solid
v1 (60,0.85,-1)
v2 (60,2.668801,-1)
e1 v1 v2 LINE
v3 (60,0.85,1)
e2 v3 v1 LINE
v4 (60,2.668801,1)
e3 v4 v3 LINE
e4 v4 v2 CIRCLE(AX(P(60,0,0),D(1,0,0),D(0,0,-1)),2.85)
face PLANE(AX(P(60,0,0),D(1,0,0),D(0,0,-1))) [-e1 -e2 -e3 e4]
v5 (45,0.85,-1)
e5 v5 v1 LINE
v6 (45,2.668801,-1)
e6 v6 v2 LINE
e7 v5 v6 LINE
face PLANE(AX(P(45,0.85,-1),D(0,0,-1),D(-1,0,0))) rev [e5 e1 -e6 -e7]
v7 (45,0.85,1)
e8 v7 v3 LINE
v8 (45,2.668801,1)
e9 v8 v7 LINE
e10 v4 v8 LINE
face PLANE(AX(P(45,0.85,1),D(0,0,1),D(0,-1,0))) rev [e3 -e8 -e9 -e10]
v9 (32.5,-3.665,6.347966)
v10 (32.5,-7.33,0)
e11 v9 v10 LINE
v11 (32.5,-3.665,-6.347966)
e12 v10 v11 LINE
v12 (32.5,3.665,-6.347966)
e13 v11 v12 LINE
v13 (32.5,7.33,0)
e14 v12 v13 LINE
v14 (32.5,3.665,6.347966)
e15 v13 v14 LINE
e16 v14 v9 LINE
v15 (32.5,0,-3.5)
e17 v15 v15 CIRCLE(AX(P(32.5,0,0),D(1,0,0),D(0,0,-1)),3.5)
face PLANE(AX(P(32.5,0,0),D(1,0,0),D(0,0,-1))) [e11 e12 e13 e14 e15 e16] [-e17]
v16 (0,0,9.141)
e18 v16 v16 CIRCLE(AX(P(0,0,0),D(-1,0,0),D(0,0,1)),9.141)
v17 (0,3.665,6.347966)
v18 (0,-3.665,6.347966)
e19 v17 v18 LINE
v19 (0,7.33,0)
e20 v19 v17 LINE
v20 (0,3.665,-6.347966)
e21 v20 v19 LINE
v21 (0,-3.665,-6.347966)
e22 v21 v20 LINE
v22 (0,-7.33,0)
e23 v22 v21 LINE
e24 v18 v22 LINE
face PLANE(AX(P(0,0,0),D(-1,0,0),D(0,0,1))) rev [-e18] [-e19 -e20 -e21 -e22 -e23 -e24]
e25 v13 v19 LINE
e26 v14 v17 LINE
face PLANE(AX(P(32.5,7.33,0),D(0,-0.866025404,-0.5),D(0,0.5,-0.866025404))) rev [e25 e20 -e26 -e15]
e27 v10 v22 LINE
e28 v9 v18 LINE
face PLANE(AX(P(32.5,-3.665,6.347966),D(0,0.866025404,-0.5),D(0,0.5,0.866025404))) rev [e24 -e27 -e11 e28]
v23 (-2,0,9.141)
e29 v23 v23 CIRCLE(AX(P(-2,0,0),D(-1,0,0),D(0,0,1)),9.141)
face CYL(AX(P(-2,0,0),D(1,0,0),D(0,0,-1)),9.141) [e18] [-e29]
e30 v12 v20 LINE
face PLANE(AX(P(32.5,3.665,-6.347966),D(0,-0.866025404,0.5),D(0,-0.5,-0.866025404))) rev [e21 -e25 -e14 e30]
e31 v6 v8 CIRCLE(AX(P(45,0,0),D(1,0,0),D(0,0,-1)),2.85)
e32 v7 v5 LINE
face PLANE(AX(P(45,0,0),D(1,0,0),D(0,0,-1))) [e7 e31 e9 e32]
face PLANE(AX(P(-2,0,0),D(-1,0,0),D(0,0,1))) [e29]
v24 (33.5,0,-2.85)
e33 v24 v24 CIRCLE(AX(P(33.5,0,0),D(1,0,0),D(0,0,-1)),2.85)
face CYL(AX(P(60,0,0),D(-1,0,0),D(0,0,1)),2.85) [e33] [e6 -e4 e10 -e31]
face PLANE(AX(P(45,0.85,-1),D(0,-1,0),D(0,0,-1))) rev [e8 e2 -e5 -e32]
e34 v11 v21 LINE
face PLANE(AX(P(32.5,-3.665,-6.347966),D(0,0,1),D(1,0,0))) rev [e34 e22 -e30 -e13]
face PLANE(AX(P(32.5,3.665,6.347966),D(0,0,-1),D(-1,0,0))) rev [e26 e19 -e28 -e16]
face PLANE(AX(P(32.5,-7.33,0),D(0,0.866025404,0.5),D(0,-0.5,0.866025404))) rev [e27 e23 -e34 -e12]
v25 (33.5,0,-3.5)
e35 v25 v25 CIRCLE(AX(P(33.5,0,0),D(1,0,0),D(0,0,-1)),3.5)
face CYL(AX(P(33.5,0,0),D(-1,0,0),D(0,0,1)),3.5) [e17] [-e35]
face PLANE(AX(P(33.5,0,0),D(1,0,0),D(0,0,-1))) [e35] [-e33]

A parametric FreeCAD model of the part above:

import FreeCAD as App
import Part
import Sketcher
Q = App.Units.Quantity

doc = App.newDocument("Part")
body = doc.addObject("PartDesign::Body", "Body")

# Sketch on YZ plane
sketch1 = body.newObject("Sketcher::SketchObject", "Sketch")
sketch1.AttachmentSupport = (doc.getObject("YZ_Plane"), [""])
sketch1.MapMode = "FlatFace"
sketch1.addGeometry(Part.Circle(App.Vector(0, 0, 0), App.Vector(0, 0, 1), 2.9), False)
sketch1.addConstraint([
    Sketcher.Constraint("Coincident", 0, 3, -1, 1),
    Sketcher.Constraint("Diameter", 0, Q("5.7 mm")),
])
pad1 = body.newObject("PartDesign::Pad", "Pad")
pad1.Profile = sketch1
pad1.Length = 60

# Sketch on YZ plane
sketch2 = body.newObject("Sketcher::SketchObject", "Sketch001")
sketch2.AttachmentSupport = (doc.getObject("YZ_Plane"), [""])
sketch2.MapMode = "FlatFace"
sketch2.addGeometry(Part.Circle(App.Vector(0, 0, 0), App.Vector(0, 0, 1), 9), False)
sketch2.addConstraint([
    Sketcher.Constraint("Coincident", 0, 3, -1, 1),
    Sketcher.Constraint("Diameter", 0, Q("18.282 mm")),
])
pad2 = body.newObject("PartDesign::Pad", "Pad001")
pad2.Profile = sketch2
pad2.Length = 2
pad2.Reversed = True

# Sketch on YZ plane
sketch3 = body.newObject("Sketcher::SketchObject", "Sketch002")
sketch3.AttachmentSupport = (doc.getObject("YZ_Plane"), [""])
sketch3.MapMode = "FlatFace"
sketch3.addGeometry([
    Part.LineSegment(App.Vector(4, 6, 0), App.Vector(-4, 6, 0)),  # 0
    Part.LineSegment(App.Vector(-4, 6, 0), App.Vector(-7, 0, 0)),  # 1
    Part.LineSegment(App.Vector(-7, 0, 0), App.Vector(-4, -6, 0)),  # 2
    Part.LineSegment(App.Vector(-4, -6, 0), App.Vector(4, -6, 0)),  # 3
    Part.LineSegment(App.Vector(4, -6, 0), App.Vector(7, 0, 0)),  # 4
    Part.LineSegment(App.Vector(7, 0, 0), App.Vector(4, 6, 0)),  # 5
], False)
sketch3.addConstraint([
    Sketcher.Constraint("Coincident", 0, 2, 1, 1),
    Sketcher.Constraint("Coincident", 1, 2, 2, 1),
    Sketcher.Constraint("Coincident", 2, 2, 3, 1),
    Sketcher.Constraint("Coincident", 3, 2, 4, 1),
    Sketcher.Constraint("Coincident", 4, 2, 5, 1),
    Sketcher.Constraint("Coincident", 5, 2, 0, 1),
    Sketcher.Constraint("Horizontal", 0),
    Sketcher.Constraint("Horizontal", 3),
    Sketcher.Constraint("Symmetric", 0, 2, 3, 2, -1, 1),
    Sketcher.Constraint("Symmetric", 1, 2, 4, 2, -1, 1),
    Sketcher.Constraint("PointOnObject", 1, 2, -1),
    Sketcher.Constraint("Parallel", 2, 5),
    Sketcher.Constraint("Vertical", 0, 2, 2, 2),
    Sketcher.Constraint("Angle", 1, Q("-120 deg")),
    Sketcher.Constraint("DistanceX", 0, 2, 0, 1, Q("7.33 mm")),
    Sketcher.Constraint("Distance", 1, Q("7.33 mm")),
])
pad3 = body.newObject("PartDesign::Pad", "Pad002")
pad3.Profile = sketch3
pad3.Length = 32.5

# Sketch on YZ plane
sketch4 = body.newObject("Sketcher::SketchObject", "Sketch003")
sketch4.AttachmentSupport = (doc.getObject("YZ_Plane"), [""])
sketch4.MapMode = "FlatFace"
sketch4.AttachmentOffset = App.Placement(App.Vector(0, 0, 60), App.Rotation())
sketch4.addGeometry([
    Part.LineSegment(App.Vector(0.8, 1, 0), App.Vector(0.8, -1, 0)),
    Part.LineSegment(App.Vector(0.8, -1, 0), App.Vector(2.9, -1, 0)),
    Part.LineSegment(App.Vector(2.9, -1, 0), App.Vector(2.9, 1, 0)),
    Part.LineSegment(App.Vector(2.9, 1, 0), App.Vector(0.8, 1, 0)),
], False)
sketch4.addConstraint([
    Sketcher.Constraint("Coincident", 0, 2, 1, 1),
    Sketcher.Constraint("Coincident", 1, 2, 2, 1),
    Sketcher.Constraint("Coincident", 2, 2, 3, 1),
    Sketcher.Constraint("Coincident", 3, 2, 0, 1),
    Sketcher.Constraint("Vertical", 0),
    Sketcher.Constraint("Horizontal", 1),
    Sketcher.Constraint("Vertical", 2),
    Sketcher.Constraint("Horizontal", 3),
    Sketcher.Constraint("Equal", 3, 0),
    Sketcher.Constraint("DistanceX", 1, 1, 1, 2, Q("2 mm")),
    Sketcher.Constraint("DistanceY", 0, 2, -1, 1, Q("1 mm")),
    Sketcher.Constraint("DistanceX", -1, 1, 0, 2, Q("0.85 mm")),
])
pocket1 = body.newObject("PartDesign::Pocket", "Pocket")
pocket1.Profile = sketch4
pocket1.Length = 15

# Sketch on YZ plane
sketch5 = body.newObject("Sketcher::SketchObject", "Sketch004")
sketch5.AttachmentSupport = (doc.getObject("YZ_Plane"), [""])
sketch5.MapMode = "FlatFace"
sketch5.AttachmentOffset = App.Placement(App.Vector(0, 0, 32.5), App.Rotation())
sketch5.addGeometry(Part.Circle(App.Vector(0, 0, 0), App.Vector(0, 0, 1), 3.5), False)
sketch5.addConstraint([
    Sketcher.Constraint("Coincident", 0, 3, -1, 1),
    Sketcher.Constraint("Diameter", 0, Q("7 mm")),
])
pad4 = body.newObject("PartDesign::Pad", "Pad003")
pad4.Profile = sketch5
pad4.Length = 1

doc.recompute()
